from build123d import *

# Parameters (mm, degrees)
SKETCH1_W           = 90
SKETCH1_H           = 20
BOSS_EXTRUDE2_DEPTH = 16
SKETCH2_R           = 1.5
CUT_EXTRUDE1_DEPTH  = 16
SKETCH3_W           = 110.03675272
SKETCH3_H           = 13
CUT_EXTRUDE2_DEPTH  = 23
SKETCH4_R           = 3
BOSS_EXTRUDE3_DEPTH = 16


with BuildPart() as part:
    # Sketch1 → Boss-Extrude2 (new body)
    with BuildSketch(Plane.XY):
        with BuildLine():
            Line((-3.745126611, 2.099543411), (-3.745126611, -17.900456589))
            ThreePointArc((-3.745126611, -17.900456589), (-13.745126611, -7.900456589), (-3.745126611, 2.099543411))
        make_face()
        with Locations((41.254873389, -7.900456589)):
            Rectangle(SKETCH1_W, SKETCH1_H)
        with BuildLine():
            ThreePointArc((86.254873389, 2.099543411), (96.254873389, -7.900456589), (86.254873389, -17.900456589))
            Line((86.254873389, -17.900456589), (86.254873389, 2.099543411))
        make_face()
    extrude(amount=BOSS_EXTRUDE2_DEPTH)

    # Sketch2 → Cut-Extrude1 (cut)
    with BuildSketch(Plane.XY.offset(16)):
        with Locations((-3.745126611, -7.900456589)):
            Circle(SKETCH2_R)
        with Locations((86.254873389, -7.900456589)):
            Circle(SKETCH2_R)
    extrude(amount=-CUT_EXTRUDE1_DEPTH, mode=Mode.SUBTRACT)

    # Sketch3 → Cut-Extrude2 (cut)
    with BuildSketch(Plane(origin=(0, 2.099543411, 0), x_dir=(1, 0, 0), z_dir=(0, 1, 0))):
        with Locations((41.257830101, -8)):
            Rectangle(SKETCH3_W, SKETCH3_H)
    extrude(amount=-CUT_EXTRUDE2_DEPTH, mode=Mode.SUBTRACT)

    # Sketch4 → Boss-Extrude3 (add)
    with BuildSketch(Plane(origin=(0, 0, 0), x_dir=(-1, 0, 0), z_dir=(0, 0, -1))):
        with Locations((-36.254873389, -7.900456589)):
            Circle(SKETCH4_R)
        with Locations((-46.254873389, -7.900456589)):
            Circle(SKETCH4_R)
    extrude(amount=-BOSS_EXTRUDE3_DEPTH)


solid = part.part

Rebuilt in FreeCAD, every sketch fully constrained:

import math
import FreeCAD as App
import Part
import Sketcher
from FreeCAD import Vector


def add_polygon(sketch, points):
    """Adds a closed chain of lines whose ends are joined by coincident constraints."""
    first, n = sketch.GeometryCount, len(points)
    for a, b in zip(points, points[1:] + points[:1]):
        sketch.addGeometry(Part.LineSegment(App.Vector(*a, 0), App.Vector(*b, 0)), False)
    for i in range(n):
        sketch.addConstraint(Sketcher.Constraint("Coincident", first + i, 2, first + (i + 1) % n, 1))

doc = App.newDocument("Part")
body = doc.addObject("PartDesign::Body", "Body")
body.AllowCompound = True

# Sketch on XY plane
sketch1 = doc.addObject("Sketcher::SketchObject", "Sketch")
body.addObject(sketch1)
sketch1.AttachmentSupport = (doc.XY_Plane, [""])
sketch1.MapMode = "FlatFace"
sketch1.addGeometry([
    Part.ArcOfCircle(Part.Circle(Vector(-3.745127, -7.900457, 0), Vector(0, 0, 1), 10), math.radians(90), math.radians(270)),
    Part.LineSegment(Vector(-3.745127, -17.900457, 0), Vector(86.254873, -17.900457, 0)),
    Part.ArcOfCircle(Part.Circle(Vector(86.254873, -7.900457, 0), Vector(0, 0, 1), 10), math.radians(-90), math.radians(90)),
    Part.LineSegment(Vector(86.254873, 2.099543, 0), Vector(-3.745127, 2.099543, 0)),
], False)
sketch1.addConstraint([
    Sketcher.Constraint("Tangent", 0, 2, 1, 1),
    Sketcher.Constraint("Tangent", 1, 2, 2, 1),
    Sketcher.Constraint("Tangent", 2, 2, 3, 1),
    Sketcher.Constraint("Tangent", 3, 2, 0, 1),
    Sketcher.Constraint("Horizontal", 1),
    Sketcher.Constraint("Horizontal", 3),
    Sketcher.Constraint("Radius", 0, 10.0),
    Sketcher.Constraint("DistanceX", 1, 1, 1, 2, 90.0),
    Sketcher.Constraint("DistanceX", 0, 3, -1, 1, 3.745127),
    Sketcher.Constraint("DistanceY", 0, 3, -1, 1, 7.900457),
])
pad1 = doc.addObject("PartDesign::Pad", "Pad")
body.addObject(pad1)
pad1.Profile = sketch1
pad1.Length = 16

# Sketch on XY plane
sketch2 = doc.addObject("Sketcher::SketchObject", "Sketch001")
body.addObject(sketch2)
sketch2.AttachmentSupport = (doc.XY_Plane, [""])
sketch2.MapMode = "FlatFace"
sketch2.AttachmentOffset = App.Placement(Vector(0, 0, 16), App.Rotation())
sketch2.addGeometry([
    Part.Circle(Vector(-3.745127, -7.900457, 0), Vector(0, 0, 1), 1.5),
    Part.Circle(Vector(86.254873, -7.900457, 0), Vector(0, 0, 1), 1.5),
], False)
sketch2.addConstraint([
    Sketcher.Constraint("Equal", 0, 1),
    Sketcher.Constraint("Horizontal", 0, 3, 1, 3),
    Sketcher.Constraint("Diameter", 0, 3.0),
    Sketcher.Constraint("DistanceX", 0, 3, 1, 3, 90.0),
    Sketcher.Constraint("DistanceX", 0, 3, -1, 1, 3.745127),
    Sketcher.Constraint("DistanceY", 0, 3, -1, 1, 7.900457),
])
pocket1 = doc.addObject("PartDesign::Pocket", "Pocket")
body.addObject(pocket1)
pocket1.Profile = sketch2
pocket1.Length = 16

# Sketch on XZ plane
sketch3 = doc.addObject("Sketcher::SketchObject", "Sketch002")
body.addObject(sketch3)
sketch3.AttachmentSupport = (doc.XZ_Plane, [""])
sketch3.MapMode = "FlatFace"
sketch3.AttachmentOffset = App.Placement(Vector(0, 0, -2.099543), App.Rotation())
add_polygon(sketch3, [(-13.760546, 1.5), (-13.760546, 14.5), (96.276206, 14.5), (96.276206, 1.5)])  # lines 0-3
sketch3.addConstraint([
    Sketcher.Constraint("Vertical", 0),
    Sketcher.Constraint("Horizontal", 1),
    Sketcher.Constraint("Vertical", 2),
    Sketcher.Constraint("Horizontal", 3),
    Sketcher.Constraint("DistanceY", 0, 1, 0, 2, 13.0),
    Sketcher.Constraint("DistanceY", -1, 1, 0, 2, 14.5),
    Sketcher.Constraint("DistanceX", 1, 1, 1, 2, 110.036753),
    Sketcher.Constraint("DistanceX", 0, 2, -1, 1, 13.760546),
])
pocket2 = doc.addObject("PartDesign::Pocket", "Pocket001")
body.addObject(pocket2)
pocket2.Profile = sketch3
pocket2.Length = 23
pocket2.Reversed = True

# Sketch on XY plane
sketch4 = doc.addObject("Sketcher::SketchObject", "Sketch003")
body.addObject(sketch4)
sketch4.AttachmentSupport = (doc.XY_Plane, [""])
sketch4.MapMode = "FlatFace"
sketch4.addGeometry([
    Part.Circle(Vector(36.254873, -7.900457, 0), Vector(0, 0, 1), 3),
    Part.Circle(Vector(46.254873, -7.900457, 0), Vector(0, 0, 1), 3),
], False)
sketch4.addConstraint([
    Sketcher.Constraint("Equal", 0, 1),
    Sketcher.Constraint("Horizontal", 0, 3, 1, 3),
    Sketcher.Constraint("Diameter", 0, 6.0),
    Sketcher.Constraint("DistanceX", 0, 3, 1, 3, 10.0),
    Sketcher.Constraint("DistanceX", -1, 1, 0, 3, 36.254873),
    Sketcher.Constraint("DistanceY", 0, 3, -1, 1, 7.900457),
])
pad2 = doc.addObject("PartDesign::Pad", "Pad001")
body.addObject(pad2)
pad2.Profile = sketch4
pad2.Length = 16

doc.recompute()
